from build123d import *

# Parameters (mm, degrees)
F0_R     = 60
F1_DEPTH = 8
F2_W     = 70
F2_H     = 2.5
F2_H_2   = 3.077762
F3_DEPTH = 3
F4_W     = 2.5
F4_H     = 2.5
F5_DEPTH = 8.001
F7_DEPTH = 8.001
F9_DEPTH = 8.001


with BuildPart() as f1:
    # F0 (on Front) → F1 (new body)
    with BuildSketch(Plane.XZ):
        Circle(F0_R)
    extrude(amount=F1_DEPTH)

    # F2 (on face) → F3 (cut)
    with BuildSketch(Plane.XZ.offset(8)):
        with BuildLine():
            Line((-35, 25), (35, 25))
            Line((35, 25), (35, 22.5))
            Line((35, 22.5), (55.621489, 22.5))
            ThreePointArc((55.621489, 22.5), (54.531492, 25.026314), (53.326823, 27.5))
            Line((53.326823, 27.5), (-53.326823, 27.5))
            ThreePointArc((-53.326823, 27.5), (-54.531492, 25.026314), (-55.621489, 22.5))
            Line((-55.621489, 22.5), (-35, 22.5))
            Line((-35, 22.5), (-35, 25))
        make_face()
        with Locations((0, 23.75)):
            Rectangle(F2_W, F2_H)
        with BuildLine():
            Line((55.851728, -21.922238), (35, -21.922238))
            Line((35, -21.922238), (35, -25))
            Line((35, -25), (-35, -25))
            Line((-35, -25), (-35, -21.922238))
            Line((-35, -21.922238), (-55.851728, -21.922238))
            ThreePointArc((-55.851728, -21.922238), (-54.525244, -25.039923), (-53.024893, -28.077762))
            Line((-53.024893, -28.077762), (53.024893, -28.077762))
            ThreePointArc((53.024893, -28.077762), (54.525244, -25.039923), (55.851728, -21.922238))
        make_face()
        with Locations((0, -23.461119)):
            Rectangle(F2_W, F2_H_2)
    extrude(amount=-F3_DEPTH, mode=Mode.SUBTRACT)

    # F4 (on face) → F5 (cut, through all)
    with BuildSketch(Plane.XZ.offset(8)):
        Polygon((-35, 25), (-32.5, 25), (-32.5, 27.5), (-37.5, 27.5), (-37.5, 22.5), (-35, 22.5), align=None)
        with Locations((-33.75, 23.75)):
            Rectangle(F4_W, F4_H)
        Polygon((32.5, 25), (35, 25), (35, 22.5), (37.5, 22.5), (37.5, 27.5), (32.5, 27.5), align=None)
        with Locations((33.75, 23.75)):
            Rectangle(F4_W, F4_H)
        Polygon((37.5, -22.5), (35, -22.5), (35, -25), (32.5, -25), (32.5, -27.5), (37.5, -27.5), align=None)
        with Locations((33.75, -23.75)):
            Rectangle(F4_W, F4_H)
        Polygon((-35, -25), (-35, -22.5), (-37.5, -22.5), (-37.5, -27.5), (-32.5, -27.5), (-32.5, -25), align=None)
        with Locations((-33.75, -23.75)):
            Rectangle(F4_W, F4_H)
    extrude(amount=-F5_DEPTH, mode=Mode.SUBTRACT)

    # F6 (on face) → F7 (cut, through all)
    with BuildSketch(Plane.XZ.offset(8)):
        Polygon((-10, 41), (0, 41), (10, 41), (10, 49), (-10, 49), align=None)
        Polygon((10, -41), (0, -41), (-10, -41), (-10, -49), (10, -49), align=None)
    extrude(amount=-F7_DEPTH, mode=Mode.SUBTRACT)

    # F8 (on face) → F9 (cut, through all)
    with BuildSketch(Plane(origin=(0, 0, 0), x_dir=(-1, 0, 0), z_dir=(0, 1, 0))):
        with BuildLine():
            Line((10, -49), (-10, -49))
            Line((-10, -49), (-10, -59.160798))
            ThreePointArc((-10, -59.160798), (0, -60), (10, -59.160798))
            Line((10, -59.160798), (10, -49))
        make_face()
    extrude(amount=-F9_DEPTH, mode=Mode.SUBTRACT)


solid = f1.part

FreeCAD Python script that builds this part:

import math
import FreeCAD as App
import Part
import Sketcher

doc = App.newDocument("Part")
body = doc.addObject("PartDesign::Body", "Body")

# Sketch on XZ plane
sketch1 = doc.addObject("Sketcher::SketchObject", "Sketch")
body.addObject(sketch1)
sketch1.AttachmentSupport = (doc.XZ_Plane, [""])
sketch1.MapMode = "FlatFace"
sketch1.addGeometry(Part.Circle(App.Vector(0, 0, 0), App.Vector(0, 0, 1), 60), False)
sketch1.addConstraint([
    Sketcher.Constraint("Coincident", 0, 3, -1, 1),
    Sketcher.Constraint("Diameter", 0, 120.0),
])
pad1 = doc.addObject("PartDesign::Pad", "Pad")
body.addObject(pad1)
pad1.Profile = sketch1
pad1.Length = 8

# Sketch on XZ plane
sketch2 = doc.addObject("Sketcher::SketchObject", "Sketch001")
body.addObject(sketch2)
sketch2.AttachmentSupport = (doc.XZ_Plane, [""])
sketch2.MapMode = "FlatFace"
sketch2.AttachmentOffset = App.Placement(App.Vector(0, 0, 8), App.Rotation())
sketch2.addGeometry([
    Part.ArcOfCircle(Part.Circle(App.Vector(-0.000236, -0.000107, 0), App.Vector(0, 0, 1), 60.00026), math.radians(22.024323), math.radians(27.2796)),  # 0
    Part.LineSegment(App.Vector(53.326823, 27.5, 0), App.Vector(-53.326823, 27.5, 0)),  # 1
    Part.ArcOfCircle(Part.Circle(App.Vector(0.000236, -0.000107, 0), App.Vector(0, 0, 1), 60.00026), math.radians(152.7204), math.radians(157.975677)),  # 2
    Part.LineSegment(App.Vector(-55.621489, 22.5, 0), App.Vector(55.621489, 22.5, 0)),  # 3
    Part.LineSegment(App.Vector(55.851728, -21.922238, 0), App.Vector(-55.851728, -21.922238, 0)),  # 4
    Part.ArcOfCircle(Part.Circle(App.Vector(0.000193, 0.000092, 0), App.Vector(0, 0, 1), 60.000214), math.radians(-158.569592), math.radians(-152.097876)),  # 5
    Part.LineSegment(App.Vector(-53.024893, -28.077762, 0), App.Vector(53.024893, -28.077762, 0)),  # 6
    Part.ArcOfCircle(Part.Circle(App.Vector(-0.000193, 0.000092, 0), App.Vector(0, 0, 1), 60.000214), math.radians(-27.902124), math.radians(-21.430408)),  # 7
], False)
sketch2.addConstraint([
    Sketcher.Constraint("Coincident", 0, 2, 1, 1),
    Sketcher.Constraint("Coincident", 1, 2, 2, 1),
    Sketcher.Constraint("Coincident", 2, 2, 3, 1),
    Sketcher.Constraint("Coincident", 3, 2, 0, 1),
    Sketcher.Constraint("Coincident", 4, 2, 5, 1),
    Sketcher.Constraint("Coincident", 5, 2, 6, 1),
    Sketcher.Constraint("Coincident", 6, 2, 7, 1),
    Sketcher.Constraint("Coincident", 7, 2, 4, 1),
    Sketcher.Constraint("Horizontal", 1),
    Sketcher.Constraint("Horizontal", 3),
    Sketcher.Constraint("Horizontal", 4),
    Sketcher.Constraint("Horizontal", 6),
    Sketcher.Constraint("Equal", 0, 2),
    Sketcher.Constraint("Equal", 5, 7),
    Sketcher.Constraint("Symmetric", 0, 3, 2, 3, -2),
    Sketcher.Constraint("Symmetric", 5, 3, 7, 3, -2),
    Sketcher.Constraint("DistanceY", 2, 2, 1, 2, 5.0),
    Sketcher.Constraint("DistanceY", -1, 1, 0, 2, 27.5),
    Sketcher.Constraint("Radius", 0, 60.00026),
    Sketcher.Constraint("Radius", 5, 60.000214),
    Sketcher.Constraint("DistanceY", 2, 3, 5, 3, 0.000199),
    Sketcher.Constraint("DistanceX", 5, 2, 7, 3, 53.0247),
    Sketcher.Constraint("DistanceX", 1, 2, 1, 1, 106.653646),
    Sketcher.Constraint("DistanceX", 3, 1, 3, 2, 111.242978),
    Sketcher.Constraint("DistanceX", 4, 2, 4, 1, 111.703456),
    Sketcher.Constraint("DistanceX", 6, 1, 6, 2, 106.049786),
])
pocket1 = doc.addObject("PartDesign::Pocket", "Pocket")
body.addObject(pocket1)
pocket1.Profile = sketch2
pocket1.Length = 3

# Sketch on XZ plane
sketch3 = doc.addObject("Sketcher::SketchObject", "Sketch002")
body.addObject(sketch3)
sketch3.AttachmentSupport = (doc.XZ_Plane, [""])
sketch3.MapMode = "FlatFace"
sketch3.AttachmentOffset = App.Placement(App.Vector(0, 0, 8), App.Rotation())
sketch3.addGeometry([
    Part.LineSegment(App.Vector(-32.5, 27.5, 0), App.Vector(-37.5, 27.5, 0)),  # 0
    Part.LineSegment(App.Vector(-37.5, 27.5, 0), App.Vector(-37.5, 22.5, 0)),  # 1
    Part.LineSegment(App.Vector(-37.5, 22.5, 0), App.Vector(-32.5, 22.5, 0)),  # 2
    Part.LineSegment(App.Vector(-32.5, 22.5, 0), App.Vector(-32.5, 27.5, 0)),  # 3
    Part.LineSegment(App.Vector(37.5, 22.5, 0), App.Vector(37.5, 27.5, 0)),  # 4
    Part.LineSegment(App.Vector(37.5, 27.5, 0), App.Vector(32.5, 27.5, 0)),  # 5
    Part.LineSegment(App.Vector(32.5, 27.5, 0), App.Vector(32.5, 22.5, 0)),  # 6
    Part.LineSegment(App.Vector(32.5, 22.5, 0), App.Vector(37.5, 22.5, 0)),  # 7
    Part.LineSegment(App.Vector(37.5, -22.5, 0), App.Vector(32.5, -22.5, 0)),  # 8
    Part.LineSegment(App.Vector(32.5, -22.5, 0), App.Vector(32.5, -27.5, 0)),  # 9
    Part.LineSegment(App.Vector(32.5, -27.5, 0), App.Vector(37.5, -27.5, 0)),  # 10
    Part.LineSegment(App.Vector(37.5, -27.5, 0), App.Vector(37.5, -22.5, 0)),  # 11
    Part.LineSegment(App.Vector(-37.5, -22.5, 0), App.Vector(-37.5, -27.5, 0)),  # 12
    Part.LineSegment(App.Vector(-37.5, -27.5, 0), App.Vector(-32.5, -27.5, 0)),  # 13
    Part.LineSegment(App.Vector(-32.5, -27.5, 0), App.Vector(-32.5, -22.5, 0)),  # 14
    Part.LineSegment(App.Vector(-32.5, -22.5, 0), App.Vector(-37.5, -22.5, 0)),  # 15
], False)
sketch3.addConstraint([
    Sketcher.Constraint("Coincident", 0, 2, 1, 1),
    Sketcher.Constraint("Coincident", 1, 2, 2, 1),
    Sketcher.Constraint("Coincident", 2, 2, 3, 1),
    Sketcher.Constraint("Coincident", 3, 2, 0, 1),
    Sketcher.Constraint("Coincident", 4, 2, 5, 1),
    Sketcher.Constraint("Coincident", 5, 2, 6, 1),
    Sketcher.Constraint("Coincident", 6, 2, 7, 1),
    Sketcher.Constraint("Coincident", 7, 2, 4, 1),
    Sketcher.Constraint("Coincident", 8, 2, 9, 1),
    Sketcher.Constraint("Coincident", 9, 2, 10, 1),
    Sketcher.Constraint("Coincident", 10, 2, 11, 1),
    Sketcher.Constraint("Coincident", 11, 2, 8, 1),
    Sketcher.Constraint("Coincident", 12, 2, 13, 1),
    Sketcher.Constraint("Coincident", 13, 2, 14, 1),
    Sketcher.Constraint("Coincident", 14, 2, 15, 1),
    Sketcher.Constraint("Coincident", 15, 2, 12, 1),
    Sketcher.Constraint("Horizontal", 0),
    Sketcher.Constraint("Vertical", 1),
    Sketcher.Constraint("Horizontal", 2),
    Sketcher.Constraint("Vertical", 3),
    Sketcher.Constraint("Vertical", 4),
    Sketcher.Constraint("Horizontal", 5),
    Sketcher.Constraint("Vertical", 6),
    Sketcher.Constraint("Horizontal", 7),
    Sketcher.Constraint("Horizontal", 8),
    Sketcher.Constraint("Vertical", 9),
    Sketcher.Constraint("Horizontal", 10),
    Sketcher.Constraint("Vertical", 11),
    Sketcher.Constraint("Vertical", 12),
    Sketcher.Constraint("Horizontal", 13),
    Sketcher.Constraint("Vertical", 14),
    Sketcher.Constraint("Horizontal", 15),
    Sketcher.Constraint("Symmetric", 2, 2, 8, 2, -1, 1),
    Sketcher.Constraint("Symmetric", 0, 2, 10, 2, -1, 1),
    Sketcher.Constraint("Symmetric", 4, 2, 12, 2, -1, 1),
    Sketcher.Constraint("Symmetric", 6, 2, 14, 2, -1, 1),
    Sketcher.Constraint("Symmetric", 0, 2, 4, 2, -2),
    Sketcher.Constraint("Symmetric", 2, 2, 6, 2, -2),
    Sketcher.Constraint("Equal", 15, 1),
    Sketcher.Constraint("DistanceX", 0, 2, 0, 1, 5.0),
    Sketcher.Constraint("DistanceX", 3, 2, 4, 2, 70.0),
    Sketcher.Constraint("DistanceY", 8, 2, 6, 2, 45.0),
])
pocket2 = doc.addObject("PartDesign::Pocket", "Pocket001")
body.addObject(pocket2)
pocket2.Profile = sketch3
pocket2.Type = "ThroughAll"

# Sketch on XZ plane
sketch4 = doc.addObject("Sketcher::SketchObject", "Sketch003")
body.addObject(sketch4)
sketch4.AttachmentSupport = (doc.XZ_Plane, [""])
sketch4.MapMode = "FlatFace"
sketch4.AttachmentOffset = App.Placement(App.Vector(0, 0, 8), App.Rotation())
sketch4.addGeometry([
    Part.LineSegment(App.Vector(-10, 41, 0), App.Vector(10, 41, 0)),  # 0
    Part.LineSegment(App.Vector(10, 41, 0), App.Vector(10, 49, 0)),  # 1
    Part.LineSegment(App.Vector(10, 49, 0), App.Vector(-10, 49, 0)),  # 2
    Part.LineSegment(App.Vector(-10, 49, 0), App.Vector(-10, 41, 0)),  # 3
    Part.LineSegment(App.Vector(10, -41, 0), App.Vector(-10, -41, 0)),  # 4
    Part.LineSegment(App.Vector(-10, -41, 0), App.Vector(-10, -49, 0)),  # 5
    Part.LineSegment(App.Vector(-10, -49, 0), App.Vector(10, -49, 0)),  # 6
    Part.LineSegment(App.Vector(10, -49, 0), App.Vector(10, -41, 0)),  # 7
], False)
sketch4.addConstraint([
    Sketcher.Constraint("Coincident", 0, 2, 1, 1),
    Sketcher.Constraint("Coincident", 1, 2, 2, 1),
    Sketcher.Constraint("Coincident", 2, 2, 3, 1),
    Sketcher.Constraint("Coincident", 3, 2, 0, 1),
    Sketcher.Constraint("Coincident", 4, 2, 5, 1),
    Sketcher.Constraint("Coincident", 5, 2, 6, 1),
    Sketcher.Constraint("Coincident", 6, 2, 7, 1),
    Sketcher.Constraint("Coincident", 7, 2, 4, 1),
    Sketcher.Constraint("Horizontal", 0),
    Sketcher.Constraint("Vertical", 1),
    Sketcher.Constraint("Horizontal", 2),
    Sketcher.Constraint("Vertical", 3),
    Sketcher.Constraint("Horizontal", 4),
    Sketcher.Constraint("Vertical", 5),
    Sketcher.Constraint("Horizontal", 6),
    Sketcher.Constraint("Vertical", 7),
    Sketcher.Constraint("Symmetric", 0, 2, 4, 2, -1, 1),
    Sketcher.Constraint("Symmetric", 2, 2, 6, 2, -1, 1),
    Sketcher.Constraint("Vertical", 3, 2, 4, 2),
    Sketcher.Constraint("DistanceX", 0, 1, 0, 2, 20.0),
    Sketcher.Constraint("DistanceY", 1, 1, 1, 2, 8.0),
    Sketcher.Constraint("DistanceY", -1, 1, 0, 2, 41.0),
])
pocket3 = doc.addObject("PartDesign::Pocket", "Pocket002")
body.addObject(pocket3)
pocket3.Profile = sketch4
pocket3.Type = "ThroughAll"

# Sketch on XZ plane
sketch5 = doc.addObject("Sketcher::SketchObject", "Sketch004")
body.addObject(sketch5)
sketch5.AttachmentSupport = (doc.XZ_Plane, [""])
sketch5.MapMode = "FlatFace"
sketch5.addGeometry([
    Part.LineSegment(App.Vector(-10, -49, 0), App.Vector(10, -49, 0)),
    Part.LineSegment(App.Vector(10, -49, 0), App.Vector(10, -59.160798, 0)),
    Part.ArcOfCircle(Part.Circle(App.Vector(0, 0.000012, 0), App.Vector(0, 0, 1), 60.000012), math.radians(-99.594066), math.radians(-80.405934)),
    Part.LineSegment(App.Vector(-10, -59.160798, 0), App.Vector(-10, -49, 0)),
], False)
sketch5.addConstraint([
    Sketcher.Constraint("Coincident", 0, 2, 1, 1),
    Sketcher.Constraint("Coincident", 1, 2, 2, 2),
    Sketcher.Constraint("Coincident", 2, 1, 3, 1),
    Sketcher.Constraint("Coincident", 3, 2, 0, 1),
    Sketcher.Constraint("Horizontal", 0),
    Sketcher.Constraint("Vertical", 1),
    Sketcher.Constraint("Vertical", 3),
    Sketcher.Constraint("Symmetric", 1, 2, 2, 1, -2),
    Sketcher.Constraint("DistanceX", 0, 1, 0, 2, 20.0),
    Sketcher.Constraint("DistanceY", 0, 2, -1, 1, 49.0),
    Sketcher.Constraint("Radius", 2, 60.000012),
    Sketcher.Constraint("DistanceY", 1, 2, 1, 1, 10.160798),
])
pocket4 = doc.addObject("PartDesign::Pocket", "Pocket003")
body.addObject(pocket4)
pocket4.Profile = sketch5
pocket4.Type = "ThroughAll"
pocket4.Reversed = True

doc.recompute()
